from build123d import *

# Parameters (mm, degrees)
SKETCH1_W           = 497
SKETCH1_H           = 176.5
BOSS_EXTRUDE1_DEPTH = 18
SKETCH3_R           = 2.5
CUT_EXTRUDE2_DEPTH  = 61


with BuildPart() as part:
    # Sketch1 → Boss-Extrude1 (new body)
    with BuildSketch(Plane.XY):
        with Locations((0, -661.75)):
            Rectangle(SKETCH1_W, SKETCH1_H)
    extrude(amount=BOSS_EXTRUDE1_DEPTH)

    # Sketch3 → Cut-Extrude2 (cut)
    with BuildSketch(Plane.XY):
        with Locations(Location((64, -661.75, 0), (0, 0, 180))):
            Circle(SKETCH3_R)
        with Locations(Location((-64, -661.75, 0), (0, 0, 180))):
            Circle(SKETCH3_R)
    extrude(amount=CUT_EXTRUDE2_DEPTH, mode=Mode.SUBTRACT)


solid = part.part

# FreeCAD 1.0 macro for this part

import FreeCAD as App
import Part
import Sketcher
from FreeCAD import Vector


def add_polygon(sketch, points):
    """Adds a closed chain of lines whose ends are joined by coincident constraints."""
    first, n = sketch.GeometryCount, len(points)
    for a, b in zip(points, points[1:] + points[:1]):
        sketch.addGeometry(Part.LineSegment(App.Vector(*a, 0), App.Vector(*b, 0)), False)
    for i in range(n):
        sketch.addConstraint(Sketcher.Constraint("Coincident", first + i, 2, first + (i + 1) % n, 1))

doc = App.newDocument("Part")
body = doc.addObject("PartDesign::Body", "Body")

sketch1 = doc.addObject("Sketcher::SketchObject", "Sketch")
body.addObject(sketch1)
sketch1.AttachmentSupport = (doc.XY_Plane, [""])
sketch1.MapMode = "FlatFace"
add_polygon(sketch1, [(-248.5, -573.5), (-248.5, -750), (248.5, -750), (248.5, -573.5)])
sketch1.addConstraint(Sketcher.Constraint("Vertical", 0))
sketch1.addConstraint(Sketcher.Constraint("Horizontal", 1))
sketch1.addConstraint(Sketcher.Constraint("Vertical", 2))
sketch1.addConstraint(Sketcher.Constraint("Horizontal", 3))
sketch1.addConstraint(Sketcher.Constraint("DistanceX", 1, 1, 1, 2, 497.0))
sketch1.addConstraint(Sketcher.Constraint("DistanceY", 0, 2, 0, 1, 176.5))
sketch1.addConstraint(Sketcher.Constraint("DistanceY", 0, 2, -1, 1, 750.0))
sketch1.addConstraint(Sketcher.Constraint("DistanceX", 0, 2, -1, 1, 248.5))
pad1 = doc.addObject("PartDesign::Pad", "Pad")
body.addObject(pad1)
pad1.Profile = sketch1
pad1.Length = 18

sketch2 = doc.addObject("Sketcher::SketchObject", "Sketch001")
body.addObject(sketch2)
sketch2.AttachmentSupport = (doc.XY_Plane, [""])
sketch2.MapMode = "FlatFace"
sketch2.addGeometry(Part.Circle(Vector(64, -661.75, 0), Vector(0, 0, 1), 2.5), False)
sketch2.addGeometry(Part.Circle(Vector(-64, -661.75, 0), Vector(0, 0, 1), 2.5), False)
sketch2.addConstraint(Sketcher.Constraint("Equal", 0, 1))
sketch2.addConstraint(Sketcher.Constraint("Symmetric", 0, 3, 1, 3, -2))
sketch2.addConstraint(Sketcher.Constraint("Diameter", 0, 5.0))
sketch2.addConstraint(Sketcher.Constraint("DistanceX", -1, 1, 0, 3, 64.0))
sketch2.addConstraint(Sketcher.Constraint("DistanceY", 0, 3, -1, 1, 661.75))
pocket1 = doc.addObject("PartDesign::Pocket", "Pocket")
body.addObject(pocket1)
pocket1.Profile = sketch2
pocket1.Length = 61
pocket1.Reversed = True

doc.recompute()
